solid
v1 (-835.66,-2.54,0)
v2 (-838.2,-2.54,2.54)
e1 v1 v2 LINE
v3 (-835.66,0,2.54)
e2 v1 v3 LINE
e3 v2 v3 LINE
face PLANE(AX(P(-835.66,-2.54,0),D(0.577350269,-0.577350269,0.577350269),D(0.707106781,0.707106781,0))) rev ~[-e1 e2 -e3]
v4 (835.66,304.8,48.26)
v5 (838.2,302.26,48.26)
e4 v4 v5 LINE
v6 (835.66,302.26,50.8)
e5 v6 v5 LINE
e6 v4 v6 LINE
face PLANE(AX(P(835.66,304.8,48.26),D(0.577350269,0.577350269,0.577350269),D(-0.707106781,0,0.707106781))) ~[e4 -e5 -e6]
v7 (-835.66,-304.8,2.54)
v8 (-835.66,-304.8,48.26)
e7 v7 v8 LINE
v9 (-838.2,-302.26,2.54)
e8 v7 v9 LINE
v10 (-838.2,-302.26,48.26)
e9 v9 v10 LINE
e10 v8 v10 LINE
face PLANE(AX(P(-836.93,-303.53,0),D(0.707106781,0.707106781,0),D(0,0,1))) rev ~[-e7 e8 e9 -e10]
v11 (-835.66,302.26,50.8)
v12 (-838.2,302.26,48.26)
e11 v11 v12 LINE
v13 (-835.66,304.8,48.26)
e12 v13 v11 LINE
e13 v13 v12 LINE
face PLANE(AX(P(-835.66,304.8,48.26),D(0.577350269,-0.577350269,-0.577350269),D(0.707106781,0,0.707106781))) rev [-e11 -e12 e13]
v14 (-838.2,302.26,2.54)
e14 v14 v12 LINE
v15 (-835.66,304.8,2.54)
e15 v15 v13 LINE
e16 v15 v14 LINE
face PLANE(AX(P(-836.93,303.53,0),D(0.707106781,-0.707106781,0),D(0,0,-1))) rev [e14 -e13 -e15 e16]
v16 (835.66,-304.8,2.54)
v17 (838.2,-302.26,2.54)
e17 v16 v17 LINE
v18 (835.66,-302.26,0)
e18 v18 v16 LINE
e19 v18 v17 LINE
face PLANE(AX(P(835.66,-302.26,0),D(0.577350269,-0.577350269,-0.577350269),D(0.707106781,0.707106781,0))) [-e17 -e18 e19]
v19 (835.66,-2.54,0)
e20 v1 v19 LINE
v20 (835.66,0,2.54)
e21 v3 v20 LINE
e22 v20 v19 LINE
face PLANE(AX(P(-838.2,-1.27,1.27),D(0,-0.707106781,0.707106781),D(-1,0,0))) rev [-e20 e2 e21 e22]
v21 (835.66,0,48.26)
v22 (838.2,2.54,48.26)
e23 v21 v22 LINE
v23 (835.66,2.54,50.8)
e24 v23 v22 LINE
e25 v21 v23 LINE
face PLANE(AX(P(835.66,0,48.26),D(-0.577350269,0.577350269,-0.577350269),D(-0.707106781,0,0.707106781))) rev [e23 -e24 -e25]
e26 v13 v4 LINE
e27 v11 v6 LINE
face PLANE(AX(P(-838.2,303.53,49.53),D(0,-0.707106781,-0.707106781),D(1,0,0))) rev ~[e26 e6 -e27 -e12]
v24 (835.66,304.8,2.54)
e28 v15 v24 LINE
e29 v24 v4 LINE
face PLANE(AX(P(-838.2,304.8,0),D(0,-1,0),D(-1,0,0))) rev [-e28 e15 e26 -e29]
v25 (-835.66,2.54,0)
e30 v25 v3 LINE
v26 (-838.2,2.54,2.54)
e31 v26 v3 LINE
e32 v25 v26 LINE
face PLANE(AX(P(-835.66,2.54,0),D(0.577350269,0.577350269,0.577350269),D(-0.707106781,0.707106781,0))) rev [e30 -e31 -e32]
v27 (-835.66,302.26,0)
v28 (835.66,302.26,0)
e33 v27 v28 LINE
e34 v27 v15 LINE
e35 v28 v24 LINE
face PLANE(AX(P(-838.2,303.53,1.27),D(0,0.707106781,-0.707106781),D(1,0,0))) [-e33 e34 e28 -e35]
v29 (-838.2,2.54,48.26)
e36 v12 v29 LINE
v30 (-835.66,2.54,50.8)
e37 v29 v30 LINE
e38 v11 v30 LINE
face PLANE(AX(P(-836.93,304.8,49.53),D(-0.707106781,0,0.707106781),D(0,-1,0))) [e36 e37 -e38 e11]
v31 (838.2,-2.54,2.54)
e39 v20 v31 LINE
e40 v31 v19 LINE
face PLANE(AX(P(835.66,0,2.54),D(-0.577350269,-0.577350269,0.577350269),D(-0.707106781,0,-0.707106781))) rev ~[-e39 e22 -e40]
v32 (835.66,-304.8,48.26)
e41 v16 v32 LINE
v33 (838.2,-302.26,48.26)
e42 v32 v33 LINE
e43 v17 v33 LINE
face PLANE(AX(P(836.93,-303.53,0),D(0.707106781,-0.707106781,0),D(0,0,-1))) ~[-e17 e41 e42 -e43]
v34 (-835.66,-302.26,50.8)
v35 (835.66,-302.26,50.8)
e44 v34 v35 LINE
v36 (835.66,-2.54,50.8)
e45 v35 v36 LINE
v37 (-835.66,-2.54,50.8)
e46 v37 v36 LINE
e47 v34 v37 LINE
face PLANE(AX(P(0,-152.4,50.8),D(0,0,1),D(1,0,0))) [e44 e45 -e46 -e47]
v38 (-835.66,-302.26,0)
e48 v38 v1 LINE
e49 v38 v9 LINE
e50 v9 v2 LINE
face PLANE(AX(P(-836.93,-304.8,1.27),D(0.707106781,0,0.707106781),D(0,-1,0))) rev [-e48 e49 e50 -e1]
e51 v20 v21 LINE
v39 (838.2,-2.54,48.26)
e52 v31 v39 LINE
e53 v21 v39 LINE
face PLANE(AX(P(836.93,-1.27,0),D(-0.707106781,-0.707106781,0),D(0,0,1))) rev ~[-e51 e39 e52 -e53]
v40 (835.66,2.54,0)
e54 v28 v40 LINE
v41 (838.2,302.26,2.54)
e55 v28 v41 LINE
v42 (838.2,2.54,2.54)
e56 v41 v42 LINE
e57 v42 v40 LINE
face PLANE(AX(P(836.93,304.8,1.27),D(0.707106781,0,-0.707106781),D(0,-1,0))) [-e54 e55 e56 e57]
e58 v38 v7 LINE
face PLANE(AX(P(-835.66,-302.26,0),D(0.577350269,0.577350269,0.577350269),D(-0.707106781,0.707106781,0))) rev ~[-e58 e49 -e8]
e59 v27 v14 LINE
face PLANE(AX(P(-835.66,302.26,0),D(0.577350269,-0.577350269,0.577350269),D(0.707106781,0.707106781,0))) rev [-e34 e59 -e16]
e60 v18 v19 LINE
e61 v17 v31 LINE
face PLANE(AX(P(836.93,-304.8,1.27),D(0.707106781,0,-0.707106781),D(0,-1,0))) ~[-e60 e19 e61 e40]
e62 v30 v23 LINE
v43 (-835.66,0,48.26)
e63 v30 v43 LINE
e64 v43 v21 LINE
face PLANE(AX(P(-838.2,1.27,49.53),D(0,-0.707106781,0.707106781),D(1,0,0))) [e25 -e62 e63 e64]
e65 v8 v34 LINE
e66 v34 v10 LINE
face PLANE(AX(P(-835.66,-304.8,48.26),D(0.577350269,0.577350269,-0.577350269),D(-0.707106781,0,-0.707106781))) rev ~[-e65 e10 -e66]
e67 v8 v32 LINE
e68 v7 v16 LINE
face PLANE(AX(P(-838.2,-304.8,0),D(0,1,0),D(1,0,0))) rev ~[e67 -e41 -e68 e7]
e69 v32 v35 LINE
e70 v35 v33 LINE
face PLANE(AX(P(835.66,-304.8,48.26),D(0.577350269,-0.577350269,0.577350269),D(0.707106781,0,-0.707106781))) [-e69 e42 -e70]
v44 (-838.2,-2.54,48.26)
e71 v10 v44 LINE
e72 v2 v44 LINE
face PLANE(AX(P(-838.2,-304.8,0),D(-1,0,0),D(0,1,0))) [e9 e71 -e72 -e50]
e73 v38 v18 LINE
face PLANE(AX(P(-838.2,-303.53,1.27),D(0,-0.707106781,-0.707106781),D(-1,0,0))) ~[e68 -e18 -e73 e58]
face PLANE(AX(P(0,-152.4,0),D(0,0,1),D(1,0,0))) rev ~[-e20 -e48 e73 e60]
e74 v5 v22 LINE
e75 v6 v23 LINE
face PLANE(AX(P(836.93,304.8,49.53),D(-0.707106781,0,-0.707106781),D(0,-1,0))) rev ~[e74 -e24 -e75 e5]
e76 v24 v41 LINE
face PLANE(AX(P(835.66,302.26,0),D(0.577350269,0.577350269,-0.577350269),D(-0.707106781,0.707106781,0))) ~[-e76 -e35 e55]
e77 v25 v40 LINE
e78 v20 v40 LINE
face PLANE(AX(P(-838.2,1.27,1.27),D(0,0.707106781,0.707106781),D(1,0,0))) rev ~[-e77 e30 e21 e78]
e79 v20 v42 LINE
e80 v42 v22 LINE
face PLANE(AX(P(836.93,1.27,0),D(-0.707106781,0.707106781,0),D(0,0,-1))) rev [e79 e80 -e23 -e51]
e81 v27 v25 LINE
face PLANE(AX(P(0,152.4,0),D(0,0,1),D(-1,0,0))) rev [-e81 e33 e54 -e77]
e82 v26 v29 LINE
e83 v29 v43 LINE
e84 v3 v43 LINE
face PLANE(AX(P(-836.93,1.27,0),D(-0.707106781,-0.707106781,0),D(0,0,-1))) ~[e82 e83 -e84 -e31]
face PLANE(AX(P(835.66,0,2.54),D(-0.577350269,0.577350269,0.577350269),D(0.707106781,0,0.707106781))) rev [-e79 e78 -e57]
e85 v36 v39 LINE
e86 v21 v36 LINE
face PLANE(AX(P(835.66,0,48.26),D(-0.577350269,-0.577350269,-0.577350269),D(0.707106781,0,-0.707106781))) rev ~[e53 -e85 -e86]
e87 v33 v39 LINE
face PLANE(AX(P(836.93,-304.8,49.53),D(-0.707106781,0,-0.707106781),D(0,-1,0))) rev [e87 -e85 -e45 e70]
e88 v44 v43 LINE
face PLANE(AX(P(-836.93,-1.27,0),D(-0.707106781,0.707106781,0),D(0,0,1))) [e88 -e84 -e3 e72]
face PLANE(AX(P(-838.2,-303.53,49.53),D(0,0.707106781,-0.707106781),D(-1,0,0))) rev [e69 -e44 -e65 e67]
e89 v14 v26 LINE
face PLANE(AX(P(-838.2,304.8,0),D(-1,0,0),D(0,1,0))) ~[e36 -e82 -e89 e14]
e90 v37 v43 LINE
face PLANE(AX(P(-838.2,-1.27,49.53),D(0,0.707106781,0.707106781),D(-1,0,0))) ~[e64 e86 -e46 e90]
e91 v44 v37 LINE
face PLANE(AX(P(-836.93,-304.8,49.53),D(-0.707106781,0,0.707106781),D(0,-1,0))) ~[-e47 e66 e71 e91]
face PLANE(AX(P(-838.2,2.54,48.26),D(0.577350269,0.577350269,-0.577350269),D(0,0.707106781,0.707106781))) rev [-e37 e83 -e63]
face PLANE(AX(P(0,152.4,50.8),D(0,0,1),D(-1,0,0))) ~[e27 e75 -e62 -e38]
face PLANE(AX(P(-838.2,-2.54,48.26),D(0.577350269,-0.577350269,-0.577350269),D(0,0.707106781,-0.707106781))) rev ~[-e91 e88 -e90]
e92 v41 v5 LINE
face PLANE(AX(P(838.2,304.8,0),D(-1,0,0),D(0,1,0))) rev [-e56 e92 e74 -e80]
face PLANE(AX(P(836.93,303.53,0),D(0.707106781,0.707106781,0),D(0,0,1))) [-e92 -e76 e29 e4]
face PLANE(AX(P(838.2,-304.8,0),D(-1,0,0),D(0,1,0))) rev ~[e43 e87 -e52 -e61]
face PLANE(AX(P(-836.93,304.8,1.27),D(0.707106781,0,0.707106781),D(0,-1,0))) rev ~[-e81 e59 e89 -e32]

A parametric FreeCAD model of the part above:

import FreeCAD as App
import Part
import Sketcher
from FreeCAD import Vector
Q = App.Units.Quantity


def add_polygon(sketch, points):
    """Adds a closed chain of lines whose ends are joined by coincident constraints."""
    first, n = sketch.GeometryCount, len(points)
    for a, b in zip(points, points[1:] + points[:1]):
        sketch.addGeometry(Part.LineSegment(App.Vector(*a, 0), App.Vector(*b, 0)), False)
    for i in range(n):
        sketch.addConstraint(Sketcher.Constraint("Coincident", first + i, 2, first + (i + 1) % n, 1))

doc = App.newDocument("Part")
body = doc.addObject("PartDesign::Body", "Body")

# Sketch on XY plane
sketch1 = body.newObject("Sketcher::SketchObject", "Sketch")
sketch1.AttachmentSupport = (doc.getObject("XY_Plane"), [""])
sketch1.MapMode = "FlatFace"
add_polygon(sketch1, [(-838.2, 0), (-838.2, -304.8), (838.2, -304.8), (838.2, 0)])  # lines 0-3
sketch1.addConstraint([
    Sketcher.Constraint("Vertical", 0),
    Sketcher.Constraint("Horizontal", 1),
    Sketcher.Constraint("Vertical", 2),
    Sketcher.Constraint("Horizontal", 3),
    Sketcher.Constraint("Symmetric", 2, 2, 3, 2, -1, 1),
    Sketcher.Constraint("DistanceX", 1, 1, 1, 2, Q("66 in")),
    Sketcher.Constraint("DistanceY", 0, 2, 0, 1, Q("12 in")),
])
pad1 = body.newObject("PartDesign::Pad", "Pad")
pad1.Profile = sketch1
pad1.Length = Q("2 in")
doc.recompute()

chamfer = body.newObject("PartDesign::Chamfer", "Chamfer")
chamfer.Base = (pad1, ["Edge1"])
chamfer.UseAllEdges = True
chamfer.Size = Q("0.1 in")
body2 = doc.addObject("PartDesign::Body", "Body001")
doc.recompute()

body2.BaseFeature = body
doc.recompute()

mirroring = doc.addObject("Part::Mirroring", "Mirroring")
mirroring.Source = body
mirroring.Base = Vector(0, 0, 0)
mirroring.Normal = Vector(0, -1, 0)
body3 = doc.addObject("PartDesign::Body", "Body002")
body3.BaseFeature = mirroring
boolean = body2.newObject("PartDesign::Boolean", "Boolean")
boolean.Type = "Fuse"
boolean.addObjects([body3])
doc.recompute()
mirroring.Visibility = False

doc.recompute()
